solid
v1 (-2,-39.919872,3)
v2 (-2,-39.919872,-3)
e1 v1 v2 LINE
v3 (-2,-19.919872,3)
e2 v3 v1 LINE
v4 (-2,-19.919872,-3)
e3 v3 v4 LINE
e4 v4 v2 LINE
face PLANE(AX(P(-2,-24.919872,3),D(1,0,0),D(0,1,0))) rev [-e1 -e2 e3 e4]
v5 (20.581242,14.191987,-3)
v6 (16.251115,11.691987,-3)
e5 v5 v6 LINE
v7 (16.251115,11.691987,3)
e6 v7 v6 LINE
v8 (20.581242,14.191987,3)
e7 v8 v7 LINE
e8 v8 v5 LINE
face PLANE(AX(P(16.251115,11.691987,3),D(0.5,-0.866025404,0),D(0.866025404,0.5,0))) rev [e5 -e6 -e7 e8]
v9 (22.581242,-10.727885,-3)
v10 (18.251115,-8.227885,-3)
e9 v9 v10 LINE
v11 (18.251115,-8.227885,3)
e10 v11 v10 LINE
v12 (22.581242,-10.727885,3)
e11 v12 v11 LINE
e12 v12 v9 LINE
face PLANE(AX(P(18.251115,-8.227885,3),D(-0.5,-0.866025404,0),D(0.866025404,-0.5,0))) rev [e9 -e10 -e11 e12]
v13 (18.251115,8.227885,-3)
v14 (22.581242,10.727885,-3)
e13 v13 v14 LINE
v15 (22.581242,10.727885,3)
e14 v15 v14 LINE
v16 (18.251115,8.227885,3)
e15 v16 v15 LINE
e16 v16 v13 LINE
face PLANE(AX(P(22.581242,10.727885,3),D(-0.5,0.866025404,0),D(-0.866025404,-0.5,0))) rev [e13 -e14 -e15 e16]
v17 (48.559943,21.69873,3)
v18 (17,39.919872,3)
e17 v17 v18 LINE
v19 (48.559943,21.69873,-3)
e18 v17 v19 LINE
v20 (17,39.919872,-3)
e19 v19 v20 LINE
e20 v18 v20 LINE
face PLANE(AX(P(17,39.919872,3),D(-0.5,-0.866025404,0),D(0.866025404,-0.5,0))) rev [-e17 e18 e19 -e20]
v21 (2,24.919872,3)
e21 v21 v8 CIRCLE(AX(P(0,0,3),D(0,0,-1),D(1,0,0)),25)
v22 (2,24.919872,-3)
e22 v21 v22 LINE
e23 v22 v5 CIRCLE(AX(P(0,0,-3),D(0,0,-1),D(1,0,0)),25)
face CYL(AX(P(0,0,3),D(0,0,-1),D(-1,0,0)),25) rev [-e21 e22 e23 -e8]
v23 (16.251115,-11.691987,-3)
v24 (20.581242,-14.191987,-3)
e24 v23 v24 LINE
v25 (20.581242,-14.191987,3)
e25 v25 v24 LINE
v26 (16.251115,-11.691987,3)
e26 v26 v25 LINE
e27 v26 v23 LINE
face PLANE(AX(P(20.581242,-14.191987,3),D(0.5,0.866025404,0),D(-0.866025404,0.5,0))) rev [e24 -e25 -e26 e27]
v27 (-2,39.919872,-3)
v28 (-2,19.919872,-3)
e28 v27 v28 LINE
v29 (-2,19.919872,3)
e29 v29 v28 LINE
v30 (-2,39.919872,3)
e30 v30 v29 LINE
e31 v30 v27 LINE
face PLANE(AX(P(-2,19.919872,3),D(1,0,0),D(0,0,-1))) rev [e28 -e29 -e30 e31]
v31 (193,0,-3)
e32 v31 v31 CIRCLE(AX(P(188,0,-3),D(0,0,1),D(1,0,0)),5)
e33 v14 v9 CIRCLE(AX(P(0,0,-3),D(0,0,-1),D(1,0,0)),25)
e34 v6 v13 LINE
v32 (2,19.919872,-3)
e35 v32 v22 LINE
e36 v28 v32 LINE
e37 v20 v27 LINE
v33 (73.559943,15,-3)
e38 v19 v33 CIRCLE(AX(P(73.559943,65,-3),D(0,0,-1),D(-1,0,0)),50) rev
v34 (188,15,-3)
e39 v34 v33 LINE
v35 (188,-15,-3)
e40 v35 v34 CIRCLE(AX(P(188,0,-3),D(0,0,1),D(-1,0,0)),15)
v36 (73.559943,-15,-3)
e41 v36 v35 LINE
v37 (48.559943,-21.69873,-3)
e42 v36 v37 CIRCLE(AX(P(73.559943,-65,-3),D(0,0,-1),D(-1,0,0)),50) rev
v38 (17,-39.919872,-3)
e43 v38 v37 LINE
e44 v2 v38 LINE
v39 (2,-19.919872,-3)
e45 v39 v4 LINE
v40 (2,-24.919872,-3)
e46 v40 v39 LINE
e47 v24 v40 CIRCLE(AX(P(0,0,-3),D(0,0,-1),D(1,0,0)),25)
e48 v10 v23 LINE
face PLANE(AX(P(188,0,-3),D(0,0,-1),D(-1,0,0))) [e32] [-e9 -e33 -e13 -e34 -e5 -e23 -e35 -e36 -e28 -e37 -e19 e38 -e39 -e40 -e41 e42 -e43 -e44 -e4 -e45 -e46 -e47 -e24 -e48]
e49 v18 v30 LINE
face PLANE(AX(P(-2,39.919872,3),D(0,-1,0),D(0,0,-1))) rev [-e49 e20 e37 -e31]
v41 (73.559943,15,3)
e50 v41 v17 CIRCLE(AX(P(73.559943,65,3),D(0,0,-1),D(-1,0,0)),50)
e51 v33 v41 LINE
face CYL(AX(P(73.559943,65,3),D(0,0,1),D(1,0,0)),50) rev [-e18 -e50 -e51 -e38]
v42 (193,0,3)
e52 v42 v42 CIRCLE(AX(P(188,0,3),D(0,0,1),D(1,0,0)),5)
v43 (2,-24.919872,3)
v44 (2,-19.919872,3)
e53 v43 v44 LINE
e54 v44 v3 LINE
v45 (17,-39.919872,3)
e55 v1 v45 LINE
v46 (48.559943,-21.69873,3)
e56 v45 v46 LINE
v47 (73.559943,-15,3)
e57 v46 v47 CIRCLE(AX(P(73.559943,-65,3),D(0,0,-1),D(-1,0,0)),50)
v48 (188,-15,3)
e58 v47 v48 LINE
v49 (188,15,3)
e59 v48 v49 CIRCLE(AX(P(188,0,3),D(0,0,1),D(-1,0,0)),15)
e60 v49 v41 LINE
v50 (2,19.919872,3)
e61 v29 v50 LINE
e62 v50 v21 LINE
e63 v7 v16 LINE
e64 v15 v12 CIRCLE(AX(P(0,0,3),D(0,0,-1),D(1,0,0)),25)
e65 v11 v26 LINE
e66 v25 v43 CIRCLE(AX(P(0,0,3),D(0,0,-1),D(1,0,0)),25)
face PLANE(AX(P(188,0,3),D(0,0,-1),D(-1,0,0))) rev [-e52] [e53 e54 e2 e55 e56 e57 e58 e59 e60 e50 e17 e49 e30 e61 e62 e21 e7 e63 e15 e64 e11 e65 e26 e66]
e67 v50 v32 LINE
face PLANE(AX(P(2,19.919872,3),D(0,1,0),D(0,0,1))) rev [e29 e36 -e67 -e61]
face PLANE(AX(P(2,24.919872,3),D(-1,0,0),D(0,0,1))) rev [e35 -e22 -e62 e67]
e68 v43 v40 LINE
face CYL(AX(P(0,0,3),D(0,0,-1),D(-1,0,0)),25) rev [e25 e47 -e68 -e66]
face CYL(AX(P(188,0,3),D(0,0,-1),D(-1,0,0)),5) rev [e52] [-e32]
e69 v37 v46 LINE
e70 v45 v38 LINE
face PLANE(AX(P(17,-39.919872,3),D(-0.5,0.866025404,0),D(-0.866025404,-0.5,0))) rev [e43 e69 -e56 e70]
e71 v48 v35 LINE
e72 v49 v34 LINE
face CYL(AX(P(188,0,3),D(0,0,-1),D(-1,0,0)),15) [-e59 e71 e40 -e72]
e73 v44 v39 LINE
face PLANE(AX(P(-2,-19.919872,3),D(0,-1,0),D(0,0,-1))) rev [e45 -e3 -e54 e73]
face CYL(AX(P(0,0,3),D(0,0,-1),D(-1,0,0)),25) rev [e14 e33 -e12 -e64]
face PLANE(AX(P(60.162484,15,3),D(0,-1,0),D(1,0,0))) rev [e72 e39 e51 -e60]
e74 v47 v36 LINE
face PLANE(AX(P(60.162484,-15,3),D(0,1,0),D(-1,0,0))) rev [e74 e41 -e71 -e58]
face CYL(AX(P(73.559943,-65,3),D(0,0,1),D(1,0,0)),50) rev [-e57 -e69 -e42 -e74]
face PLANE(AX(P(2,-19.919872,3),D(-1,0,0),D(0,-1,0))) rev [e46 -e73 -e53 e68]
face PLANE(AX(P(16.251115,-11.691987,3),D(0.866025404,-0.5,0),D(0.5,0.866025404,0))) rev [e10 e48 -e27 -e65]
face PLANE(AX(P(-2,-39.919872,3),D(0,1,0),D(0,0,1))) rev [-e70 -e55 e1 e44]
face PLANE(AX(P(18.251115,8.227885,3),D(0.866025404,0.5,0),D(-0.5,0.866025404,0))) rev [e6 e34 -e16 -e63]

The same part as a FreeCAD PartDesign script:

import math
import FreeCAD as App
import Part
import Sketcher
from FreeCAD import Vector
Q = App.Units.Quantity


def edges_at(feature, points):
    """Names of the edges that pass closest to the given points."""
    edges = feature.Shape.Edges
    near = lambda p: min(range(len(edges)), key=lambda i: edges[i].distToShape(Part.Vertex(*p))[0])
    return sorted({f"Edge{near(p) + 1}" for p in points})

doc = App.newDocument("Part")
body = doc.addObject("PartDesign::Body", "Body")

sketch1 = body.newObject("Sketcher::SketchObject", "Sketch")
sketch1.AttachmentSupport = (doc.getObject("XY_Plane"), [""])
sketch1.MapMode = "FlatFace"
sketch1.addGeometry(Part.LineSegment(Vector(2, 19.9, 0), Vector(2, 24.9, 0)), False)
sketch1.addGeometry(Part.ArcOfCircle(Part.Circle(Vector(0, 0, 0), Vector(0, 0, 1), 25), math.radians(35), math.radians(85)), False)
sketch1.addGeometry(Part.LineSegment(Vector(20.6, 14.2, 0), Vector(16.3, 11.7, 0)), False)
sketch1.addGeometry(Part.LineSegment(Vector(16.3, 11.7, 0), Vector(18.3, 8.2, 0)), False)
sketch1.addGeometry(Part.LineSegment(Vector(18.3, 8.2, 0), Vector(22.6, 10.7, 0)), False)
sketch1.addGeometry(Part.ArcOfCircle(Part.Circle(Vector(0, 0, 0), Vector(0, 0, 1), 25), math.radians(-25), math.radians(25)), False)
sketch1.addGeometry(Part.LineSegment(Vector(22.6, -10.7, 0), Vector(18.3, -8.2, 0)), False)
sketch1.addGeometry(Part.LineSegment(Vector(18.3, -8.2, 0), Vector(16.3, -11.7, 0)), False)
sketch1.addGeometry(Part.LineSegment(Vector(16.3, -11.7, 0), Vector(20.6, -14.2, 0)), False)
sketch1.addGeometry(Part.ArcOfCircle(Part.Circle(Vector(0, 0, 0), Vector(0, 0, 1), 25), math.radians(-85), math.radians(-35)), False)
sketch1.addGeometry(Part.LineSegment(Vector(2, -24.9, 0), Vector(2, -19.9, 0)), False)
sketch1.addGeometry(Part.LineSegment(Vector(2, -19.9, 0), Vector(-2, -19.9, 0)), False)
sketch1.addGeometry(Part.LineSegment(Vector(-2, -19.9, 0), Vector(-2, -39.9, 0)), False)
sketch1.addGeometry(Part.LineSegment(Vector(-2, -39.9, 0), Vector(17, -39.9, 0)), False)
sketch1.addGeometry(Part.LineSegment(Vector(17, -39.9, 0), Vector(60.2, -15, 0)), False)
sketch1.addGeometry(Part.LineSegment(Vector(60.2, -15, 0), Vector(188, -15, 0)), False)
sketch1.addGeometry(Part.ArcOfCircle(Part.Circle(Vector(188, 0, 0), Vector(0, 0, 1), 15), math.radians(-90), math.radians(90)), False)
sketch1.addGeometry(Part.LineSegment(Vector(188, 15, 0), Vector(60.2, 15, 0)), False)
sketch1.addGeometry(Part.LineSegment(Vector(60.2, 15, 0), Vector(17, 39.9, 0)), False)
sketch1.addGeometry(Part.LineSegment(Vector(17, 39.9, 0), Vector(-2, 39.9, 0)), False)
sketch1.addGeometry(Part.LineSegment(Vector(-2, 39.9, 0), Vector(-2, 19.9, 0)), False)
sketch1.addGeometry(Part.LineSegment(Vector(-2, 19.9, 0), Vector(2, 19.9, 0)), False)
sketch1.addGeometry(Part.Circle(Vector(188, 0, 0), Vector(0, 0, 1), 5), False)
sketch1.addConstraint(Sketcher.Constraint("Coincident", 0, 2, 1, 2))
sketch1.addConstraint(Sketcher.Constraint("Coincident", 1, 1, 2, 1))
sketch1.addConstraint(Sketcher.Constraint("Coincident", 2, 2, 3, 1))
sketch1.addConstraint(Sketcher.Constraint("Coincident", 3, 2, 4, 1))
sketch1.addConstraint(Sketcher.Constraint("Coincident", 4, 2, 5, 2))
sketch1.addConstraint(Sketcher.Constraint("Coincident", 5, 1, 6, 1))
sketch1.addConstraint(Sketcher.Constraint("Coincident", 6, 2, 7, 1))
sketch1.addConstraint(Sketcher.Constraint("Coincident", 7, 2, 8, 1))
sketch1.addConstraint(Sketcher.Constraint("Coincident", 8, 2, 9, 2))
sketch1.addConstraint(Sketcher.Constraint("Coincident", 9, 1, 10, 1))
sketch1.addConstraint(Sketcher.Constraint("Coincident", 10, 2, 11, 1))
sketch1.addConstraint(Sketcher.Constraint("Coincident", 11, 2, 12, 1))
sketch1.addConstraint(Sketcher.Constraint("Coincident", 12, 2, 13, 1))
sketch1.addConstraint(Sketcher.Constraint("Coincident", 13, 2, 14, 1))
sketch1.addConstraint(Sketcher.Constraint("Coincident", 14, 2, 15, 1))
sketch1.addConstraint(Sketcher.Constraint("Tangent", 15, 2, 16, 1))
sketch1.addConstraint(Sketcher.Constraint("Tangent", 16, 2, 17, 1))
sketch1.addConstraint(Sketcher.Constraint("Coincident", 17, 2, 18, 1))
sketch1.addConstraint(Sketcher.Constraint("Coincident", 18, 2, 19, 1))
sketch1.addConstraint(Sketcher.Constraint("Coincident", 19, 2, 20, 1))
sketch1.addConstraint(Sketcher.Constraint("Coincident", 20, 2, 21, 1))
sketch1.addConstraint(Sketcher.Constraint("Coincident", 21, 2, 0, 1))
sketch1.addConstraint(Sketcher.Constraint("Vertical", 0))
sketch1.addConstraint(Sketcher.Constraint("Vertical", 10))
sketch1.addConstraint(Sketcher.Constraint("Horizontal", 11))
sketch1.addConstraint(Sketcher.Constraint("Vertical", 12))
sketch1.addConstraint(Sketcher.Constraint("Horizontal", 13))
sketch1.addConstraint(Sketcher.Constraint("Horizontal", 15))
sketch1.addConstraint(Sketcher.Constraint("Horizontal", 17))
sketch1.addConstraint(Sketcher.Constraint("Horizontal", 19))
sketch1.addConstraint(Sketcher.Constraint("Vertical", 20))
sketch1.addConstraint(Sketcher.Constraint("Horizontal", 21))
sketch1.addConstraint(Sketcher.Constraint("Coincident", 1, 3, -1, 1))
sketch1.addConstraint(Sketcher.Constraint("Coincident", 5, 3, -1, 1))
sketch1.addConstraint(Sketcher.Constraint("Coincident", 9, 3, -1, 1))
sketch1.addConstraint(Sketcher.Constraint("Coincident", 22, 3, 16, 3))
sketch1.addConstraint(Sketcher.Constraint("Equal", 1, 5))
sketch1.addConstraint(Sketcher.Constraint("Equal", 5, 9))
sketch1.addConstraint(Sketcher.Constraint("Symmetric", 10, 2, 20, 2, -1, 1))
sketch1.addConstraint(Sketcher.Constraint("Symmetric", 3, 2, 6, 2, -1))
sketch1.addConstraint(Sketcher.Constraint("Symmetric", 2, 2, 7, 2, -1))
sketch1.addConstraint(Sketcher.Constraint("Symmetric", 14, 2, 17, 2, -1))
sketch1.addConstraint(Sketcher.Constraint("Symmetric", 13, 2, 18, 2, -1))
sketch1.addConstraint(Sketcher.Constraint("Perpendicular", 2, 3))
sketch1.addConstraint(Sketcher.Constraint("Perpendicular", 3, 4))
sketch1.addConstraint(Sketcher.Constraint("Perpendicular", 6, 7))
sketch1.addConstraint(Sketcher.Constraint("Perpendicular", 7, 8))
sketch1.addConstraint(Sketcher.Constraint("Parallel", 4, 14))
sketch1.addConstraint(Sketcher.Constraint("Vertical", 0, 2, 9, 1))
sketch1.addConstraint(Sketcher.Constraint("Vertical", 12, 2, 19, 2))
sketch1.addConstraint(Sketcher.Constraint("Equal", 2, 4))
sketch1.addConstraint(Sketcher.Constraint("Diameter", 22, Q("10 mm")))
sketch1.addConstraint(Sketcher.Constraint("Radius", 1, Q("25 mm")))
sketch1.addConstraint(Sketcher.Constraint("Radius", 16, Q("15 mm")))
sketch1.addConstraint(Sketcher.Constraint("DistanceX", 11, 2, 11, 1, Q("4 mm")))
sketch1.addConstraint(Sketcher.Constraint("DistanceX", 13, 1, 13, 2, Q("19 mm")))
sketch1.addConstraint(Sketcher.Constraint("DistanceY", 0, 1, 0, 2, Q("5 mm")))
sketch1.addConstraint(Sketcher.Constraint("DistanceY", 12, 2, 12, 1, Q("20 mm")))
sketch1.addConstraint(Sketcher.Constraint("Angle", 2, Q("-150 deg")))
sketch1.addConstraint(Sketcher.Constraint("Distance", 2, Q("5 mm")))
sketch1.addConstraint(Sketcher.Constraint("Distance", 3, Q("4 mm")))
sketch1.addConstraint(Sketcher.Constraint("DistanceX", -1, 1, 16, 3, Q("188 mm")))
pad1 = body.newObject("PartDesign::Pad", "Pad")
pad1.Profile = sketch1
pad1.Length = 6
pad1.Midplane = True
doc.recompute()

fillet = body.newObject("PartDesign::Fillet", "Fillet")
fillet.Base = (pad1, edges_at(pad1, [(60.162, -15, 0), (60.162, 15, 0)]))
fillet.Radius = 50

doc.recompute()
